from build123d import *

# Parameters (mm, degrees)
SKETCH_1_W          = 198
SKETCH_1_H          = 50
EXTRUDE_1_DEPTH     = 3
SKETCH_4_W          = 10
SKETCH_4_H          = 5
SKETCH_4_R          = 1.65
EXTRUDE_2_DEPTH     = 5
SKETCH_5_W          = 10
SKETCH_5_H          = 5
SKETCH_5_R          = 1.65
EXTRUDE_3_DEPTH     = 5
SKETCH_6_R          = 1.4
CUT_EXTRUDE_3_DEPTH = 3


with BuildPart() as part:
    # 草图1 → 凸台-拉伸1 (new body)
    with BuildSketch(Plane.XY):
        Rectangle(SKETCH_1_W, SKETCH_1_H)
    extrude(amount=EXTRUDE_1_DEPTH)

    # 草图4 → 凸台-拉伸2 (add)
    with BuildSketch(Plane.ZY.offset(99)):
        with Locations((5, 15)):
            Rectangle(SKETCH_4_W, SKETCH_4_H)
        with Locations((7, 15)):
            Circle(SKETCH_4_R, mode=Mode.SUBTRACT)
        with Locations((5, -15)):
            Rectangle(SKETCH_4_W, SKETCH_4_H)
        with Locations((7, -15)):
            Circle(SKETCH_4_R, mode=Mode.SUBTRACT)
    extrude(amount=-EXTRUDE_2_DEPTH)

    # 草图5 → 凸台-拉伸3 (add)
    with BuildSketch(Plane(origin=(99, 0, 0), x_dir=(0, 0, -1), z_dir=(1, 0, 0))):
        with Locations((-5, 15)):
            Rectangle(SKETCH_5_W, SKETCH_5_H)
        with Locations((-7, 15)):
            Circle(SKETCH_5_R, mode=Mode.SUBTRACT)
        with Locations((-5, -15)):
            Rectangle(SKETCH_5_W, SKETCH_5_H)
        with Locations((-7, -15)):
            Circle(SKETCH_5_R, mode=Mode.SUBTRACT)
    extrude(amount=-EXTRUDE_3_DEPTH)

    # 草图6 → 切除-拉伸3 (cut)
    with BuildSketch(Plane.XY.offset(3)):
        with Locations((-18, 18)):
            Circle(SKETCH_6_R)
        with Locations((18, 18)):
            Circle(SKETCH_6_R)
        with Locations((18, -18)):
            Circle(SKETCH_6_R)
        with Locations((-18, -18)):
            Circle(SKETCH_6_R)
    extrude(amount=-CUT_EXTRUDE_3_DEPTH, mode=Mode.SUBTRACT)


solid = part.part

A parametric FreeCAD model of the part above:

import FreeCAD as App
import Part
import Sketcher

V = App.Vector

doc = App.newDocument("Part")
body = doc.addObject("PartDesign::Body", "Body")

# Sketch on XY plane
sketch1 = body.newObject("Sketcher::SketchObject", "Sketch")
sketch1.AttachmentSupport = (doc.getObject("XY_Plane"), [""])
sketch1.MapMode = "FlatFace"
sketch1.addGeometry([
    Part.LineSegment(V(-99, 25, 0), V(-99, -25, 0)),
    Part.LineSegment(V(-99, -25, 0), V(99, -25, 0)),
    Part.LineSegment(V(99, -25, 0), V(99, 25, 0)),
    Part.LineSegment(V(99, 25, 0), V(-99, 25, 0)),
], False)
sketch1.addConstraint([
    Sketcher.Constraint("Coincident", 0, 2, 1, 1),
    Sketcher.Constraint("Coincident", 1, 2, 2, 1),
    Sketcher.Constraint("Coincident", 2, 2, 3, 1),
    Sketcher.Constraint("Coincident", 3, 2, 0, 1),
    Sketcher.Constraint("Vertical", 0),
    Sketcher.Constraint("Horizontal", 1),
    Sketcher.Constraint("Vertical", 2),
    Sketcher.Constraint("Horizontal", 3),
    Sketcher.Constraint("Symmetric", 0, 2, 2, 2, -1, 1),
    Sketcher.Constraint("DistanceX", 1, 1, 1, 2, 198.0),
    Sketcher.Constraint("DistanceY", 0, 2, 0, 1, 50.0),
])
pad1 = body.newObject("PartDesign::Pad", "Pad")
pad1.Profile = sketch1
pad1.Length = 3

# Sketch on YZ plane
sketch2 = body.newObject("Sketcher::SketchObject", "Sketch001")
sketch2.AttachmentSupport = (doc.getObject("YZ_Plane"), [""])
sketch2.MapMode = "FlatFace"
sketch2.AttachmentOffset = App.Placement(V(0, 0, -99), App.Rotation())
sketch2.addGeometry([
    Part.LineSegment(V(17.5, 0, 0), V(12.5, 0, 0)),  # 0
    Part.LineSegment(V(12.5, 0, 0), V(12.5, 10, 0)),  # 1
    Part.LineSegment(V(12.5, 10, 0), V(17.5, 10, 0)),  # 2
    Part.LineSegment(V(17.5, 10, 0), V(17.5, 0, 0)),  # 3
    Part.Circle(V(15, 7, 0), V(0, 0, 1), 1.6),  # 4
    Part.LineSegment(V(-12.5, 0, 0), V(-17.5, 0, 0)),  # 5
    Part.LineSegment(V(-17.5, 0, 0), V(-17.5, 10, 0)),  # 6
    Part.LineSegment(V(-17.5, 10, 0), V(-12.5, 10, 0)),  # 7
    Part.LineSegment(V(-12.5, 10, 0), V(-12.5, 0, 0)),  # 8
    Part.Circle(V(-15, 7, 0), V(0, 0, 1), 1.6),  # 9
], False)
sketch2.addConstraint([
    Sketcher.Constraint("Coincident", 0, 2, 1, 1),
    Sketcher.Constraint("Coincident", 1, 2, 2, 1),
    Sketcher.Constraint("Coincident", 2, 2, 3, 1),
    Sketcher.Constraint("Coincident", 3, 2, 0, 1),
    Sketcher.Constraint("Coincident", 5, 2, 6, 1),
    Sketcher.Constraint("Coincident", 6, 2, 7, 1),
    Sketcher.Constraint("Coincident", 7, 2, 8, 1),
    Sketcher.Constraint("Coincident", 8, 2, 5, 1),
    Sketcher.Constraint("Horizontal", 0),
    Sketcher.Constraint("Vertical", 1),
    Sketcher.Constraint("Horizontal", 2),
    Sketcher.Constraint("Vertical", 3),
    Sketcher.Constraint("Horizontal", 5),
    Sketcher.Constraint("Vertical", 6),
    Sketcher.Constraint("Horizontal", 7),
    Sketcher.Constraint("Vertical", 8),
    Sketcher.Constraint("Equal", 4, 9),
    Sketcher.Constraint("Symmetric", 3, 2, 5, 2, -1, 1),
    Sketcher.Constraint("Symmetric", 4, 3, 9, 3, -2),
    Sketcher.Constraint("Symmetric", 1, 2, 7, 2, -2),
    Sketcher.Constraint("PointOnObject", 0, 2, -1),
    Sketcher.Constraint("Diameter", 4, 3.3),
    Sketcher.Constraint("DistanceX", 0, 2, 0, 1, 5.0),
    Sketcher.Constraint("DistanceY", 1, 1, 1, 2, 10.0),
    Sketcher.Constraint("DistanceX", -1, 1, 4, 3, 15.0),
    Sketcher.Constraint("DistanceY", -1, 1, 4, 3, 7.0),
    Sketcher.Constraint("DistanceX", 5, 2, 0, 2, 30.0),
])
pad2 = body.newObject("PartDesign::Pad", "Pad001")
pad2.Profile = sketch2
pad2.Length = 5

# Sketch on YZ plane
sketch3 = body.newObject("Sketcher::SketchObject", "Sketch002")
sketch3.AttachmentSupport = (doc.getObject("YZ_Plane"), [""])
sketch3.MapMode = "FlatFace"
sketch3.AttachmentOffset = App.Placement(V(0, 0, 99), App.Rotation())
sketch3.addGeometry([
    Part.LineSegment(V(17.5, 10, 0), V(12.5, 10, 0)),  # 0
    Part.LineSegment(V(12.5, 10, 0), V(12.5, 0, 0)),  # 1
    Part.LineSegment(V(12.5, 0, 0), V(17.5, 0, 0)),  # 2
    Part.LineSegment(V(17.5, 0, 0), V(17.5, 10, 0)),  # 3
    Part.Circle(V(15, 7, 0), V(0, 0, 1), 1.6),  # 4
    Part.LineSegment(V(-12.5, 10, 0), V(-17.5, 10, 0)),  # 5
    Part.LineSegment(V(-17.5, 10, 0), V(-17.5, 0, 0)),  # 6
    Part.LineSegment(V(-17.5, 0, 0), V(-12.5, 0, 0)),  # 7
    Part.LineSegment(V(-12.5, 0, 0), V(-12.5, 10, 0)),  # 8
    Part.Circle(V(-15, 7, 0), V(0, 0, 1), 1.6),  # 9
], False)
sketch3.addConstraint([
    Sketcher.Constraint("Coincident", 0, 2, 1, 1),
    Sketcher.Constraint("Coincident", 1, 2, 2, 1),
    Sketcher.Constraint("Coincident", 2, 2, 3, 1),
    Sketcher.Constraint("Coincident", 3, 2, 0, 1),
    Sketcher.Constraint("Coincident", 5, 2, 6, 1),
    Sketcher.Constraint("Coincident", 6, 2, 7, 1),
    Sketcher.Constraint("Coincident", 7, 2, 8, 1),
    Sketcher.Constraint("Coincident", 8, 2, 5, 1),
    Sketcher.Constraint("Horizontal", 0),
    Sketcher.Constraint("Vertical", 1),
    Sketcher.Constraint("Horizontal", 2),
    Sketcher.Constraint("Vertical", 3),
    Sketcher.Constraint("Horizontal", 5),
    Sketcher.Constraint("Vertical", 6),
    Sketcher.Constraint("Horizontal", 7),
    Sketcher.Constraint("Vertical", 8),
    Sketcher.Constraint("Equal", 4, 9),
    Sketcher.Constraint("Symmetric", 2, 2, 6, 2, -1, 1),
    Sketcher.Constraint("Symmetric", 4, 3, 9, 3, -2),
    Sketcher.Constraint("Symmetric", 1, 2, 7, 2, -2),
    Sketcher.Constraint("Horizontal", 3, 2, 5, 2),
    Sketcher.Constraint("Diameter", 4, 3.3),
    Sketcher.Constraint("DistanceX", 0, 2, 0, 1, 5.0),
    Sketcher.Constraint("DistanceY", 1, 2, 1, 1, 10.0),
    Sketcher.Constraint("DistanceX", -1, 1, 4, 3, 15.0),
    Sketcher.Constraint("DistanceY", -1, 1, 4, 3, 7.0),
    Sketcher.Constraint("DistanceX", 5, 2, 0, 2, 30.0),
])
pad3 = body.newObject("PartDesign::Pad", "Pad002")
pad3.Profile = sketch3
pad3.Length = 5
pad3.Reversed = True

# Sketch on XY plane
sketch4 = body.newObject("Sketcher::SketchObject", "Sketch003")
sketch4.AttachmentSupport = (doc.getObject("XY_Plane"), [""])
sketch4.MapMode = "FlatFace"
sketch4.AttachmentOffset = App.Placement(V(0, 0, 3), App.Rotation())
sketch4.addGeometry([
    Part.Circle(V(-18, 18, 0), V(0, 0, 1), 1.4),
    Part.Circle(V(18, 18, 0), V(0, 0, 1), 1.4),
    Part.Circle(V(18, -18, 0), V(0, 0, 1), 1.4),
    Part.Circle(V(-18, -18, 0), V(0, 0, 1), 1.4),
], False)
sketch4.addConstraint([
    Sketcher.Constraint("Equal", 0, 1),
    Sketcher.Constraint("Equal", 1, 2),
    Sketcher.Constraint("Equal", 2, 3),
    Sketcher.Constraint("Symmetric", 0, 3, 2, 3, -1, 1),
    Sketcher.Constraint("Symmetric", 1, 3, 3, 3, -1, 1),
    Sketcher.Constraint("Symmetric", 0, 3, 1, 3, -2),
    Sketcher.Constraint("Diameter", 0, 2.8),
    Sketcher.Constraint("DistanceX", 0, 3, -1, 1, 18.0),
    Sketcher.Constraint("DistanceY", -1, 1, 0, 3, 18.0),
])
pocket1 = body.newObject("PartDesign::Pocket", "Pocket")
pocket1.Profile = sketch4
pocket1.Length = 3

doc.recompute()
